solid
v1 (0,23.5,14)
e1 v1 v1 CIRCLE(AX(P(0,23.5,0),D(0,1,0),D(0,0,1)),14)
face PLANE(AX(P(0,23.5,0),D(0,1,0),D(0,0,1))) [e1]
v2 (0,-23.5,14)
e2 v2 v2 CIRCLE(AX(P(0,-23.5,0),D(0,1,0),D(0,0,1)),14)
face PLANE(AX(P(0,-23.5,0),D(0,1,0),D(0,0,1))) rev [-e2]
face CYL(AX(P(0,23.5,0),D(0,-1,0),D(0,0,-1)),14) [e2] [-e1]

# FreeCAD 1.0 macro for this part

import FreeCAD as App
import Part
import Sketcher
from FreeCAD import Vector

doc = App.newDocument("Part")
body = doc.addObject("PartDesign::Body", "Body")

sketch1 = body.newObject("Sketcher::SketchObject", "Sketch")
sketch1.AttachmentSupport = (doc.getObject("XZ_Plane"), [""])
sketch1.MapMode = "FlatFace"
sketch1.addGeometry(Part.Circle(Vector(0, 0, 0), Vector(0, 0, 1), 14), False)
sketch1.addConstraint([
    Sketcher.Constraint("Coincident", 0, 3, -1, 1),
    Sketcher.Constraint("Diameter", 0, 28.0),
])
pad1 = body.newObject("PartDesign::Pad", "Pad")
pad1.Profile = sketch1
pad1.Length = 47
pad1.Midplane = True

doc.recompute()
